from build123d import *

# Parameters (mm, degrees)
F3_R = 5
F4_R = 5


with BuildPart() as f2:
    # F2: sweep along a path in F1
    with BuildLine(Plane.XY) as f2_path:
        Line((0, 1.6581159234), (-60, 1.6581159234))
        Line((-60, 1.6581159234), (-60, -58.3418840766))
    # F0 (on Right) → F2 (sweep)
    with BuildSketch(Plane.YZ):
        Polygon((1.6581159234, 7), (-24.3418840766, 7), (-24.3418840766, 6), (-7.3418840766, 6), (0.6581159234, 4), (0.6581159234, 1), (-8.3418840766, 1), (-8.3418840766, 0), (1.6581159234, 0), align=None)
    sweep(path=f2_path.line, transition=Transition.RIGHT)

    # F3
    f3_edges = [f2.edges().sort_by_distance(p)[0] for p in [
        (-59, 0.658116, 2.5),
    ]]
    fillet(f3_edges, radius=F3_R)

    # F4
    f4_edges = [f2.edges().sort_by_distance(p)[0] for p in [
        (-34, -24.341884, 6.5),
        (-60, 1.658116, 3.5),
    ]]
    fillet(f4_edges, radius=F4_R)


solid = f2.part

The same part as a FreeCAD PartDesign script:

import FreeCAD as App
import Part
import Sketcher

V = App.Vector


def edges_at(feature, points):
    """Names of the edges that pass closest to the given points."""
    edges = feature.Shape.Edges
    near = lambda p: min(range(len(edges)), key=lambda i: edges[i].distToShape(Part.Vertex(*p))[0])
    return sorted({f"Edge{near(p) + 1}" for p in points})

doc = App.newDocument("Part")
params = doc.addObject("Spreadsheet::Sheet", "Params")
for row, (alias, value) in enumerate([
    ("sketch1_width", "26 mm"),
    ("sketch1_width2", "17 mm"),
    ("sketch1_width3", "9 mm"),
    ("sketch1_width4", "10 mm"),
    ("sketch1_height", "1 mm"),
    ("sketch2_width", "60 mm"),
    ("fillet_radius", "5 mm"),
    ("fillet2_radius", "5 mm"),
], start=1):
    params.set(f"A{row}", alias)
    params.set(f"B{row}", "=" + value)
    params.setAlias(f"B{row}", alias)

body = doc.addObject("PartDesign::Body", "Body")

sketch1 = doc.addObject("Sketcher::SketchObject", "Sketch")
body.addObject(sketch1)
sketch1.AttachmentSupport = (doc.YZ_Plane, [""])
sketch1.MapMode = "FlatFace"
sketch1.addGeometry(Part.LineSegment(V(1.7, 7, 0), V(-24.3, 7, 0)), False)
sketch1.addGeometry(Part.LineSegment(V(-24.3, 7, 0), V(-24.3, 6, 0)), False)
sketch1.addGeometry(Part.LineSegment(V(-24.3, 6, 0), V(-7.3, 6, 0)), False)
sketch1.addGeometry(Part.LineSegment(V(-7.3, 6, 0), V(0.7, 4, 0)), False)
sketch1.addGeometry(Part.LineSegment(V(0.7, 4, 0), V(0.7, 1, 0)), False)
sketch1.addGeometry(Part.LineSegment(V(0.7, 1, 0), V(-8.3, 1, 0)), False)
sketch1.addGeometry(Part.LineSegment(V(-8.3, 1, 0), V(-8.3, 0, 0)), False)
sketch1.addGeometry(Part.LineSegment(V(-8.3, 0, 0), V(1.7, 0, 0)), False)
sketch1.addGeometry(Part.LineSegment(V(1.7, 0, 0), V(1.7, 7, 0)), False)
sketch1.addConstraint(Sketcher.Constraint("Coincident", 0, 2, 1, 1))
sketch1.addConstraint(Sketcher.Constraint("Coincident", 1, 2, 2, 1))
sketch1.addConstraint(Sketcher.Constraint("Coincident", 2, 2, 3, 1))
sketch1.addConstraint(Sketcher.Constraint("Coincident", 3, 2, 4, 1))
sketch1.addConstraint(Sketcher.Constraint("Coincident", 4, 2, 5, 1))
sketch1.addConstraint(Sketcher.Constraint("Coincident", 5, 2, 6, 1))
sketch1.addConstraint(Sketcher.Constraint("Coincident", 6, 2, 7, 1))
sketch1.addConstraint(Sketcher.Constraint("Coincident", 7, 2, 8, 1))
sketch1.addConstraint(Sketcher.Constraint("Coincident", 8, 2, 0, 1))
sketch1.addConstraint(Sketcher.Constraint("Horizontal", 0))
sketch1.addConstraint(Sketcher.Constraint("Vertical", 1))
sketch1.addConstraint(Sketcher.Constraint("Horizontal", 2))
sketch1.addConstraint(Sketcher.Constraint("Vertical", 4))
sketch1.addConstraint(Sketcher.Constraint("Horizontal", 5))
sketch1.addConstraint(Sketcher.Constraint("Vertical", 6))
sketch1.addConstraint(Sketcher.Constraint("Horizontal", 7))
sketch1.addConstraint(Sketcher.Constraint("Vertical", 8))
sketch1.addConstraint(Sketcher.Constraint("PointOnObject", 6, 2, -1))
sketch1.addConstraint(Sketcher.Constraint("Equal", 1, 6))
sketch1.addConstraint(Sketcher.Constraint("DistanceX", 0, 2, 0, 1, 26.0))
sketch1.addConstraint(Sketcher.Constraint("DistanceX", 2, 1, 2, 2, 17.0))
sketch1.addConstraint(Sketcher.Constraint("DistanceX", 5, 2, 5, 1, 9.0))
sketch1.addConstraint(Sketcher.Constraint("DistanceX", 7, 1, 7, 2, 10.0))
sketch1.addConstraint(Sketcher.Constraint("DistanceY", 1, 2, 1, 1, 1.0))
sketch1.addConstraint(Sketcher.Constraint("DistanceY", 4, 2, 4, 1, 3.0))
sketch1.addConstraint(Sketcher.Constraint("DistanceY", 8, 1, 8, 2, 7.0))
sketch1.addConstraint(Sketcher.Constraint("DistanceX", 0, 2, -1, 1, 24.341884))
sketch1.setExpression("Constraints[19]", "Params.sketch1_width")
sketch1.setExpression("Constraints[20]", "Params.sketch1_width2")
sketch1.setExpression("Constraints[21]", "Params.sketch1_width3")
sketch1.setExpression("Constraints[22]", "Params.sketch1_width4")
sketch1.setExpression("Constraints[23]", "Params.sketch1_height")

sketch2 = doc.addObject("Sketcher::SketchObject", "Sketch001")
body.addObject(sketch2)
sketch2.AttachmentSupport = (doc.XY_Plane, [""])
sketch2.MapMode = "FlatFace"
sketch2.addGeometry(Part.LineSegment(V(0, 2, 0), V(-60, 2, 0)), False)
sketch2.addGeometry(Part.LineSegment(V(-60, 2, 0), V(-60, -58, 0)), False)
sketch2.addConstraint(Sketcher.Constraint("Coincident", 0, 2, 1, 1))
sketch2.addConstraint(Sketcher.Constraint("Horizontal", 0))
sketch2.addConstraint(Sketcher.Constraint("Vertical", 1))
sketch2.addConstraint(Sketcher.Constraint("PointOnObject", 0, 1, -2))
sketch2.addConstraint(Sketcher.Constraint("Equal", 0, 1))
sketch2.addConstraint(Sketcher.Constraint("DistanceX", 0, 2, 0, 1, 60.0))
sketch2.addConstraint(Sketcher.Constraint("DistanceY", -1, 1, 0, 1, 1.658116))
sketch2.setExpression("Constraints[5]", "Params.sketch2_width")
doc.recompute()

additivepipe = doc.addObject("PartDesign::AdditivePipe", "AdditivePipe")
body.addObject(additivepipe)
additivepipe.Profile = sketch1
additivepipe.Spine = (sketch2, ["Edge1", "Edge2"])
additivepipe.Transition = "Right corner"
doc.recompute()

fillet = doc.addObject("PartDesign::Fillet", "Fillet")
body.addObject(fillet)
fillet.Base = (additivepipe, edges_at(additivepipe, [(-59, 0.658, 2.5)]))
fillet.setExpression("Radius", "Params.fillet_radius")
doc.recompute()

fillet2 = doc.addObject("PartDesign::Fillet", "Fillet001")
body.addObject(fillet2)
fillet2.Base = (fillet, edges_at(fillet, [(-34, -24.342, 6.5), (-60, 1.658, 3.5)]))
fillet2.setExpression("Radius", "Params.fillet2_radius")

doc.recompute()
